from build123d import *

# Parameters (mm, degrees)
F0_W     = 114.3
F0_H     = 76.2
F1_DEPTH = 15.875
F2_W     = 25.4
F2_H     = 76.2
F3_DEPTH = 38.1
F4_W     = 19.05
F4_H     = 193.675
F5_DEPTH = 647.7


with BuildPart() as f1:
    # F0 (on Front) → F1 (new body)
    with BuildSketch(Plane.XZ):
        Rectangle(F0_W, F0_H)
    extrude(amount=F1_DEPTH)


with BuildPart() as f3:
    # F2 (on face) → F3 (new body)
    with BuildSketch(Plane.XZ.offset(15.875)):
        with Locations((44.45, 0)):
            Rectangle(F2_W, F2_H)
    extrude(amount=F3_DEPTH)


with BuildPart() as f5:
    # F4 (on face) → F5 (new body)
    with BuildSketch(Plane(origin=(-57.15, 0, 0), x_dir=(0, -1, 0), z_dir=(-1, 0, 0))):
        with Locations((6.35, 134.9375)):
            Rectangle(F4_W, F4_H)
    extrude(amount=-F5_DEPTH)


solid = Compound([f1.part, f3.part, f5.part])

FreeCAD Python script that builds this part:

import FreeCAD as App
import Part
import Sketcher
Q = App.Units.Quantity


def add_polygon(sketch, points):
    """Adds a closed chain of lines whose ends are joined by coincident constraints."""
    first, n = sketch.GeometryCount, len(points)
    for a, b in zip(points, points[1:] + points[:1]):
        sketch.addGeometry(Part.LineSegment(App.Vector(*a, 0), App.Vector(*b, 0)), False)
    for i in range(n):
        sketch.addConstraint(Sketcher.Constraint("Coincident", first + i, 2, first + (i + 1) % n, 1))

doc = App.newDocument("Part")
params = doc.addObject("Spreadsheet::Sheet", "Params")
for row, (alias, value) in enumerate([
    ("sketch1_height", "3 in"),
    ("sketch1_width", "4.5 in"),
    ("pad1_length", "0.625 in"),
    ("sketch2_width", "1 in"),
    ("sketch2_height", "3 in"),
    ("pad2_length", "1.5 in"),
    ("sketch3_width", "0.75 in"),
    ("sketch3_height", "7.625 in"),
    ("pad3_length", "25.5 in"),
], start=1):
    params.set(f"A{row}", alias)
    params.set(f"B{row}", "=" + value)
    params.setAlias(f"B{row}", alias)

body = doc.addObject("PartDesign::Body", "Body")

sketch1 = body.newObject("Sketcher::SketchObject", "Sketch")
sketch1.AttachmentSupport = (doc.getObject("XZ_Plane"), [""])
sketch1.MapMode = "FlatFace"
add_polygon(sketch1, [(-57, 38), (-57, -38), (57, -38), (57, 38)])
sketch1.addConstraint([
    Sketcher.Constraint("Vertical", 0),
    Sketcher.Constraint("Horizontal", 1),
    Sketcher.Constraint("Vertical", 2),
    Sketcher.Constraint("Horizontal", 3),
    Sketcher.Constraint("Symmetric", 0, 2, 2, 2, -1, 1),
    Sketcher.Constraint("DistanceY", 0, 2, 0, 1, Q("3 in")),
    Sketcher.Constraint("DistanceX", 1, 1, 1, 2, Q("4.5 in")),
])
sketch1.setExpression("Constraints[9]", "Params.sketch1_height")
sketch1.setExpression("Constraints[10]", "Params.sketch1_width")
pad1 = body.newObject("PartDesign::Pad", "Pad")
pad1.Profile = sketch1
pad1.setExpression("Length", "Params.pad1_length")
body2 = doc.addObject("PartDesign::Body", "Body001")

sketch2 = body2.newObject("Sketcher::SketchObject", "Sketch001")
sketch2.AttachmentSupport = (doc.getObject("XZ_Plane001"), [""])
sketch2.MapMode = "FlatFace"
sketch2.AttachmentOffset = App.Placement(App.Vector(0, 0, 0.625 * 25.4), App.Rotation())
add_polygon(sketch2, [(32, 38), (32, -38), (57, -38), (57, 38)])
sketch2.addConstraint([
    Sketcher.Constraint("Vertical", 0),
    Sketcher.Constraint("Horizontal", 1),
    Sketcher.Constraint("Vertical", 2),
    Sketcher.Constraint("Horizontal", 3),
    Sketcher.Constraint("DistanceX", 1, 1, 1, 2, Q("1 in")),
    Sketcher.Constraint("DistanceY", 0, 2, 0, 1, Q("3 in")),
    Sketcher.Constraint("DistanceY", 0, 2, -1, 1, Q("1.5 in")),
    Sketcher.Constraint("DistanceX", -1, 1, 0, 2, Q("1.25 in")),
])
sketch2.setExpression("Constraints[8]", "Params.sketch2_width")
sketch2.setExpression("Constraints[9]", "Params.sketch2_height")
pad2 = body2.newObject("PartDesign::Pad", "Pad001")
pad2.Profile = sketch2
pad2.setExpression("Length", "Params.pad2_length")
body3 = doc.addObject("PartDesign::Body", "Body002")

sketch3 = body3.newObject("Sketcher::SketchObject", "Sketch002")
sketch3.AttachmentSupport = (doc.getObject("YZ_Plane002"), [""])
sketch3.MapMode = "FlatFace"
sketch3.AttachmentOffset = App.Placement(App.Vector(0, 0, -2.25 * 25.4), App.Rotation())
add_polygon(sketch3, [(3, 232), (3, 38), (-16, 38), (-16, 232)])
sketch3.addConstraint([
    Sketcher.Constraint("Vertical", 0),
    Sketcher.Constraint("Horizontal", 1),
    Sketcher.Constraint("Vertical", 2),
    Sketcher.Constraint("Horizontal", 3),
    Sketcher.Constraint("DistanceX", 1, 2, 1, 1, Q("0.75 in")),
    Sketcher.Constraint("DistanceY", -1, 1, 0, 2, Q("1.5 in")),
    Sketcher.Constraint("DistanceY", 0, 2, 0, 1, Q("7.625 in")),
    Sketcher.Constraint("DistanceX", -1, 1, 0, 2, Q("0.125 in")),
])
sketch3.setExpression("Constraints[8]", "Params.sketch3_width")
sketch3.setExpression("Constraints[10]", "Params.sketch3_height")
pad3 = body3.newObject("PartDesign::Pad", "Pad002")
pad3.Profile = sketch3
pad3.setExpression("Length", "Params.pad3_length")

doc.recompute()
